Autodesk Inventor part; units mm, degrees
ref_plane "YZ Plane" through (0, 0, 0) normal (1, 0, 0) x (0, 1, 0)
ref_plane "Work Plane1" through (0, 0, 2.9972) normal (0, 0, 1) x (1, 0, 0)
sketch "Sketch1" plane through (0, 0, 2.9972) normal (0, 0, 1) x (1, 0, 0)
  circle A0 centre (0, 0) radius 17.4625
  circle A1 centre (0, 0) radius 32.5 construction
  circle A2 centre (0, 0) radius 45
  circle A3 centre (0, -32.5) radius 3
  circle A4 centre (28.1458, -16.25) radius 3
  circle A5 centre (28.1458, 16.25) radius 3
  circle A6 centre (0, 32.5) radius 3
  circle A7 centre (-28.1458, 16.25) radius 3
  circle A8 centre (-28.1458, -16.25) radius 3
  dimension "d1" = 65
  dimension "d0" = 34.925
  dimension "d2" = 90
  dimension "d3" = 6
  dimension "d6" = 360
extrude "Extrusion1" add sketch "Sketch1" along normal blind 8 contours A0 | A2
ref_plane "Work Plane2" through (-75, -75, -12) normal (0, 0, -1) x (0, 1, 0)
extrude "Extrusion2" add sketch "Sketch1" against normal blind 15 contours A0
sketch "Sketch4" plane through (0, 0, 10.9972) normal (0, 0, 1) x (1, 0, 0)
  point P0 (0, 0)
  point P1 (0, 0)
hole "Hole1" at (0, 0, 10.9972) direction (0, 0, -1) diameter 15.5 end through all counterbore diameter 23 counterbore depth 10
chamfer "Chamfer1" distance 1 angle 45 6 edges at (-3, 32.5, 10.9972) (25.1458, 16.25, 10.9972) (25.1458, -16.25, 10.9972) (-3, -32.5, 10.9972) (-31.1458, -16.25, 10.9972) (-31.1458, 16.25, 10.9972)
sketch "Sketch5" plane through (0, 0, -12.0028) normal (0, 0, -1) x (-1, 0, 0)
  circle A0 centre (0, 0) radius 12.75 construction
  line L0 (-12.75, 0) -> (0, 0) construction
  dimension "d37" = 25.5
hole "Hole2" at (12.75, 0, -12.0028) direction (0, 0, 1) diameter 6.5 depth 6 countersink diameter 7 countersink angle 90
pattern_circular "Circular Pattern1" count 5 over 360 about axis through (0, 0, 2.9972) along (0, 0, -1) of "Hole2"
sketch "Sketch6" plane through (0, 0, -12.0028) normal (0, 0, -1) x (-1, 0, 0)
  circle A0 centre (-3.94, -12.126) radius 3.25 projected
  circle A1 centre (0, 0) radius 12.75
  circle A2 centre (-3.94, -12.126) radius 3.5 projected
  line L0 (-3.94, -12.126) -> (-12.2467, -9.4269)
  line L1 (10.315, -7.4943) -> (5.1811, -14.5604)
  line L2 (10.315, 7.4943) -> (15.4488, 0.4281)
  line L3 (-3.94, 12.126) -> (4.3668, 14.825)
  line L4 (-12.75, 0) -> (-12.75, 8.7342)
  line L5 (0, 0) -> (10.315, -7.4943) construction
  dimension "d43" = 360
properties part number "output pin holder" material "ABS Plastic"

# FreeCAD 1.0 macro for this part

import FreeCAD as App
import Part
import Sketcher

V = App.Vector


def edges_at(feature, points):
    """Names of the edges that pass closest to the given points."""
    edges = feature.Shape.Edges
    near = lambda p: min(range(len(edges)), key=lambda i: edges[i].distToShape(Part.Vertex(*p))[0])
    return sorted({f"Edge{near(p) + 1}" for p in points})

doc = App.newDocument("Part")
body = doc.addObject("PartDesign::Body", "Body")

sketch1 = body.newObject("Sketcher::SketchObject", "Sketch")
sketch1.AttachmentSupport = (doc.getObject("XY_Plane"), [""])
sketch1.MapMode = "FlatFace"
sketch1.AttachmentOffset = App.Placement(V(0, 0, 2.9972), App.Rotation())
sketch1.addGeometry([
    Part.Circle(V(0, 0, 0), V(0, 0, 1), 45),
    Part.Circle(V(-28.1, -16.2, 0), V(0, 0, 1), 3),
    Part.Circle(V(0, -32.5, 0), V(0, 0, 1), 3),
    Part.Circle(V(28.1, -16.2, 0), V(0, 0, 1), 3),
    Part.Circle(V(-28.1, 16.2, 0), V(0, 0, 1), 3),
    Part.Circle(V(0, 32.5, 0), V(0, 0, 1), 3),
    Part.Circle(V(28.1, 16.2, 0), V(0, 0, 1), 3),
], False)
sketch1.addConstraint([
    Sketcher.Constraint("Coincident", 0, 3, -1, 1),
    Sketcher.Constraint("Equal", 1, 2),
    Sketcher.Constraint("Equal", 2, 3),
    Sketcher.Constraint("Equal", 3, 4),
    Sketcher.Constraint("Equal", 4, 5),
    Sketcher.Constraint("Equal", 5, 6),
    Sketcher.Constraint("Symmetric", 3, 3, 4, 3, -1, 1),
    Sketcher.Constraint("Symmetric", 2, 3, 5, 3, -1, 1),
    Sketcher.Constraint("Symmetric", 1, 3, 6, 3, -1, 1),
    Sketcher.Constraint("Symmetric", 1, 3, 3, 3, -2),
    Sketcher.Constraint("PointOnObject", 2, 3, -2),
    Sketcher.Constraint("Diameter", 0, 90.0),
    Sketcher.Constraint("Diameter", 1, 6.0),
    Sketcher.Constraint("DistanceY", 2, 3, 5, 3, 65.0),
    Sketcher.Constraint("DistanceY", 1, 3, 4, 3, 32.5),
    Sketcher.Constraint("DistanceX", 1, 3, -1, 1, 28.1458),
])
pad1 = body.newObject("PartDesign::Pad", "Pad")
pad1.Profile = sketch1
pad1.Length = 8

sketch2 = body.newObject("Sketcher::SketchObject", "Sketch001")
sketch2.AttachmentSupport = (doc.getObject("XY_Plane"), [""])
sketch2.MapMode = "FlatFace"
sketch2.AttachmentOffset = App.Placement(V(0, 0, 2.9972), App.Rotation())
sketch2.addGeometry(Part.Circle(V(0, 0, 0), V(0, 0, 1), 17), False)
sketch2.addConstraint([
    Sketcher.Constraint("Coincident", 0, 3, -1, 1),
    Sketcher.Constraint("Diameter", 0, 34.925),
])
pad2 = body.newObject("PartDesign::Pad", "Pad001")
pad2.Profile = sketch2
pad2.Length = 15
pad2.Reversed = True

sketch3 = body.newObject("Sketcher::SketchObject", "Sketch002")
sketch3.AttachmentSupport = (doc.getObject("XY_Plane"), [""])
sketch3.MapMode = "FlatFace"
sketch3.AttachmentOffset = App.Placement(V(0, 0, 10.9972), App.Rotation())
sketch3.addGeometry(Part.Circle(V(0, 0, 0), V(0, 0, 1), 8), False)
sketch3.addConstraint([
    Sketcher.Constraint("Coincident", 0, 3, -1, 1),
    Sketcher.Constraint("Diameter", 0, 15.5),
])
doc.recompute()
hole = body.newObject("PartDesign::Hole", "Hole")
hole.Profile = sketch3
hole.ThreadType = "None"
hole.Diameter = 15.5
hole.DepthType = "ThroughAll"
hole.HoleCutType = "Counterbore"
hole.HoleCutDiameter = 23
hole.HoleCutDepth = 10
doc.recompute()

chamfer = body.newObject("PartDesign::Chamfer", "Chamfer")
chamfer.Base = (hole, edges_at(hole, [
    (-3, 32.5, 10.997),
    (25.146, 16.25, 10.997),
    (25.146, -16.25, 10.997),
    (-3, -32.5, 10.997),
    (-31.146, -16.25, 10.997),
    (-31.146, 16.25, 10.997),
]))
chamfer.Size = 1

sketch4 = body.newObject("Sketcher::SketchObject", "Sketch003")
sketch4.AttachmentSupport = (doc.getObject("XY_Plane"), [""])
sketch4.MapMode = "FlatFace"
sketch4.AttachmentOffset = App.Placement(V(0, 0, -12.0028), App.Rotation())
sketch4.addGeometry(Part.Circle(V(12.8, 0, 0), V(0, 0, 1), 3.2), False)
sketch4.addConstraint([
    Sketcher.Constraint("PointOnObject", 0, 3, -1),
    Sketcher.Constraint("Diameter", 0, 6.5),
    Sketcher.Constraint("DistanceX", -1, 1, 0, 3, 12.75),
])
doc.recompute()
hole2 = body.newObject("PartDesign::Hole", "Hole001")
hole2.Profile = sketch4
hole2.ThreadType = "None"
hole2.Diameter = 6.5
hole2.DepthType = "Dimension"
hole2.Depth = 6
hole2.DrillPoint = "Flat"
hole2.HoleCutType = "Countersink"
hole2.HoleCutDiameter = 7
hole2.HoleCutCountersinkAngle = 90
hole2.Reversed = True
doc.recompute()

polarpattern = body.newObject("PartDesign::PolarPattern", "PolarPattern")
polarpattern.Originals = [hole2]
polarpattern.Axis = (doc.getObject("Z_Axis"), [""])
polarpattern.Angle = 360
polarpattern.Occurrences = 5
body.Tip = polarpattern

doc.recompute()
